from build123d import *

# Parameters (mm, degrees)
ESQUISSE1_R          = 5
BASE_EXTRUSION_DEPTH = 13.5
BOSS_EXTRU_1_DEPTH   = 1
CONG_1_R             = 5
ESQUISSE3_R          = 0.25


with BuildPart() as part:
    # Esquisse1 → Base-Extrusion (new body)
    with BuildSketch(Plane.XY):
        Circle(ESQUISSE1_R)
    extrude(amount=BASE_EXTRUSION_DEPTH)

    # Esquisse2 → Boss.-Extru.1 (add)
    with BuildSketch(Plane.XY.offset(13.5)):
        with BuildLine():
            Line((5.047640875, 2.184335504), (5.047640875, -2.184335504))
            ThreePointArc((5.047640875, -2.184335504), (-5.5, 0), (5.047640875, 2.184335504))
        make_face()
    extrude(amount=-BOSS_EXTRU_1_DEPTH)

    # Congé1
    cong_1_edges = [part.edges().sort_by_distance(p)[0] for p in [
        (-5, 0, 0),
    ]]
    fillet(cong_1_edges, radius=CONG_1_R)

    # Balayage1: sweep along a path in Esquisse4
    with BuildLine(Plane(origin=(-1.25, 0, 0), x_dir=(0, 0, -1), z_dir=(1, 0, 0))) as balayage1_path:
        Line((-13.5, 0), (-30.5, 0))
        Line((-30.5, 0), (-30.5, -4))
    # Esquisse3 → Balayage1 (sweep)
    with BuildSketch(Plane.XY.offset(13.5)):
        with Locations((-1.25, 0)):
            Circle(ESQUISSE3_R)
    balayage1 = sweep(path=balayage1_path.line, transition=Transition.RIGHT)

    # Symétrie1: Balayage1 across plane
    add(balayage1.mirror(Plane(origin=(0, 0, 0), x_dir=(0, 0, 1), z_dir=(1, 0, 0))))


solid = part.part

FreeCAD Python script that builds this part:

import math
import FreeCAD as App
import Part
import Sketcher


def edges_at(feature, points):
    """Names of the edges that pass closest to the given points."""
    edges = feature.Shape.Edges
    near = lambda p: min(range(len(edges)), key=lambda i: edges[i].distToShape(Part.Vertex(*p))[0])
    return sorted({f"Edge{near(p) + 1}" for p in points})

doc = App.newDocument("Part")
body = doc.addObject("PartDesign::Body", "Body")

sketch1 = body.newObject("Sketcher::SketchObject", "Sketch")
sketch1.AttachmentSupport = (doc.getObject("XY_Plane"), [""])
sketch1.MapMode = "FlatFace"
sketch1.addGeometry(Part.Circle(App.Vector(0, 0, 0), App.Vector(0, 0, 1), 5), False)
sketch1.addConstraint(Sketcher.Constraint("Coincident", 0, 3, -1, 1))
sketch1.addConstraint(Sketcher.Constraint("Diameter", 0, 10.0))
pad1 = body.newObject("PartDesign::Pad", "Pad")
pad1.Profile = sketch1
pad1.Length = 13.5

sketch2 = body.newObject("Sketcher::SketchObject", "Sketch001")
sketch2.AttachmentSupport = (doc.getObject("XY_Plane"), [""])
sketch2.MapMode = "FlatFace"
sketch2.AttachmentOffset = App.Placement(App.Vector(0, 0, 13.5), App.Rotation())
sketch2.addGeometry(Part.LineSegment(App.Vector(5, -2.2, 0), App.Vector(5, 2.2, 0)), False)
sketch2.addGeometry(Part.ArcOfCircle(Part.Circle(App.Vector(0, 0, 0), App.Vector(0, 0, 1), 5.5), math.radians(23), math.radians(337)), False)
sketch2.addConstraint(Sketcher.Constraint("Coincident", 0, 1, 1, 2))
sketch2.addConstraint(Sketcher.Constraint("Coincident", 1, 1, 0, 2))
sketch2.addConstraint(Sketcher.Constraint("Vertical", 0))
sketch2.addConstraint(Sketcher.Constraint("Coincident", 1, 3, -1, 1))
sketch2.addConstraint(Sketcher.Constraint("Radius", 1, 5.5))
sketch2.addConstraint(Sketcher.Constraint("DistanceY", 0, 1, 0, 2, 4.368671))
pad2 = body.newObject("PartDesign::Pad", "Pad001")
pad2.Profile = sketch2
pad2.Length = 1
pad2.Reversed = True
doc.recompute()

fillet = body.newObject("PartDesign::Fillet", "Fillet")
fillet.Base = (pad2, edges_at(pad2, [(-5, 0, 0)]))
fillet.Radius = 5

sketch3 = body.newObject("Sketcher::SketchObject", "Sketch002")
sketch3.AttachmentSupport = (doc.getObject("XY_Plane"), [""])
sketch3.MapMode = "FlatFace"
sketch3.AttachmentOffset = App.Placement(App.Vector(0, 0, 13.5), App.Rotation())
sketch3.addGeometry(Part.Circle(App.Vector(-1.25, 0, 0), App.Vector(0, 0, 1), 0.25), False)
sketch3.addConstraint(Sketcher.Constraint("PointOnObject", 0, 3, -1))
sketch3.addConstraint(Sketcher.Constraint("Diameter", 0, 0.5))
sketch3.addConstraint(Sketcher.Constraint("DistanceX", 0, 3, -1, 1, 1.25))

sketch4 = body.newObject("Sketcher::SketchObject", "Sketch003")
sketch4.AttachmentSupport = (doc.getObject("YZ_Plane"), [""])
sketch4.MapMode = "FlatFace"
sketch4.AttachmentOffset = App.Placement(App.Vector(0, 0, -1.25), App.Rotation())
sketch4.addGeometry(Part.LineSegment(App.Vector(0, 13.5, 0), App.Vector(0, 30.5, 0)), False)
sketch4.addGeometry(Part.LineSegment(App.Vector(0, 30.5, 0), App.Vector(-4, 30.5, 0)), False)
sketch4.addConstraint(Sketcher.Constraint("Coincident", 0, 2, 1, 1))
sketch4.addConstraint(Sketcher.Constraint("Vertical", 0))
sketch4.addConstraint(Sketcher.Constraint("Horizontal", 1))
sketch4.addConstraint(Sketcher.Constraint("PointOnObject", 0, 1, -2))
sketch4.addConstraint(Sketcher.Constraint("DistanceX", 1, 2, 1, 1, 4.0))
sketch4.addConstraint(Sketcher.Constraint("DistanceY", 0, 1, 0, 2, 17.0))
sketch4.addConstraint(Sketcher.Constraint("DistanceY", -1, 1, 0, 1, 13.5))
doc.recompute()

additivepipe = body.newObject("PartDesign::AdditivePipe", "AdditivePipe")
additivepipe.Profile = sketch3
additivepipe.Spine = (sketch4, ["Edge1", "Edge2"])
additivepipe.Transition = "Right corner"
doc.recompute()

mirrored = body.newObject("PartDesign::Mirrored", "Mirrored")
mirrored.Originals = [additivepipe]
mirrored.MirrorPlane = (doc.getObject("YZ_Plane"), [""])
body.Tip = mirrored

doc.recompute()
